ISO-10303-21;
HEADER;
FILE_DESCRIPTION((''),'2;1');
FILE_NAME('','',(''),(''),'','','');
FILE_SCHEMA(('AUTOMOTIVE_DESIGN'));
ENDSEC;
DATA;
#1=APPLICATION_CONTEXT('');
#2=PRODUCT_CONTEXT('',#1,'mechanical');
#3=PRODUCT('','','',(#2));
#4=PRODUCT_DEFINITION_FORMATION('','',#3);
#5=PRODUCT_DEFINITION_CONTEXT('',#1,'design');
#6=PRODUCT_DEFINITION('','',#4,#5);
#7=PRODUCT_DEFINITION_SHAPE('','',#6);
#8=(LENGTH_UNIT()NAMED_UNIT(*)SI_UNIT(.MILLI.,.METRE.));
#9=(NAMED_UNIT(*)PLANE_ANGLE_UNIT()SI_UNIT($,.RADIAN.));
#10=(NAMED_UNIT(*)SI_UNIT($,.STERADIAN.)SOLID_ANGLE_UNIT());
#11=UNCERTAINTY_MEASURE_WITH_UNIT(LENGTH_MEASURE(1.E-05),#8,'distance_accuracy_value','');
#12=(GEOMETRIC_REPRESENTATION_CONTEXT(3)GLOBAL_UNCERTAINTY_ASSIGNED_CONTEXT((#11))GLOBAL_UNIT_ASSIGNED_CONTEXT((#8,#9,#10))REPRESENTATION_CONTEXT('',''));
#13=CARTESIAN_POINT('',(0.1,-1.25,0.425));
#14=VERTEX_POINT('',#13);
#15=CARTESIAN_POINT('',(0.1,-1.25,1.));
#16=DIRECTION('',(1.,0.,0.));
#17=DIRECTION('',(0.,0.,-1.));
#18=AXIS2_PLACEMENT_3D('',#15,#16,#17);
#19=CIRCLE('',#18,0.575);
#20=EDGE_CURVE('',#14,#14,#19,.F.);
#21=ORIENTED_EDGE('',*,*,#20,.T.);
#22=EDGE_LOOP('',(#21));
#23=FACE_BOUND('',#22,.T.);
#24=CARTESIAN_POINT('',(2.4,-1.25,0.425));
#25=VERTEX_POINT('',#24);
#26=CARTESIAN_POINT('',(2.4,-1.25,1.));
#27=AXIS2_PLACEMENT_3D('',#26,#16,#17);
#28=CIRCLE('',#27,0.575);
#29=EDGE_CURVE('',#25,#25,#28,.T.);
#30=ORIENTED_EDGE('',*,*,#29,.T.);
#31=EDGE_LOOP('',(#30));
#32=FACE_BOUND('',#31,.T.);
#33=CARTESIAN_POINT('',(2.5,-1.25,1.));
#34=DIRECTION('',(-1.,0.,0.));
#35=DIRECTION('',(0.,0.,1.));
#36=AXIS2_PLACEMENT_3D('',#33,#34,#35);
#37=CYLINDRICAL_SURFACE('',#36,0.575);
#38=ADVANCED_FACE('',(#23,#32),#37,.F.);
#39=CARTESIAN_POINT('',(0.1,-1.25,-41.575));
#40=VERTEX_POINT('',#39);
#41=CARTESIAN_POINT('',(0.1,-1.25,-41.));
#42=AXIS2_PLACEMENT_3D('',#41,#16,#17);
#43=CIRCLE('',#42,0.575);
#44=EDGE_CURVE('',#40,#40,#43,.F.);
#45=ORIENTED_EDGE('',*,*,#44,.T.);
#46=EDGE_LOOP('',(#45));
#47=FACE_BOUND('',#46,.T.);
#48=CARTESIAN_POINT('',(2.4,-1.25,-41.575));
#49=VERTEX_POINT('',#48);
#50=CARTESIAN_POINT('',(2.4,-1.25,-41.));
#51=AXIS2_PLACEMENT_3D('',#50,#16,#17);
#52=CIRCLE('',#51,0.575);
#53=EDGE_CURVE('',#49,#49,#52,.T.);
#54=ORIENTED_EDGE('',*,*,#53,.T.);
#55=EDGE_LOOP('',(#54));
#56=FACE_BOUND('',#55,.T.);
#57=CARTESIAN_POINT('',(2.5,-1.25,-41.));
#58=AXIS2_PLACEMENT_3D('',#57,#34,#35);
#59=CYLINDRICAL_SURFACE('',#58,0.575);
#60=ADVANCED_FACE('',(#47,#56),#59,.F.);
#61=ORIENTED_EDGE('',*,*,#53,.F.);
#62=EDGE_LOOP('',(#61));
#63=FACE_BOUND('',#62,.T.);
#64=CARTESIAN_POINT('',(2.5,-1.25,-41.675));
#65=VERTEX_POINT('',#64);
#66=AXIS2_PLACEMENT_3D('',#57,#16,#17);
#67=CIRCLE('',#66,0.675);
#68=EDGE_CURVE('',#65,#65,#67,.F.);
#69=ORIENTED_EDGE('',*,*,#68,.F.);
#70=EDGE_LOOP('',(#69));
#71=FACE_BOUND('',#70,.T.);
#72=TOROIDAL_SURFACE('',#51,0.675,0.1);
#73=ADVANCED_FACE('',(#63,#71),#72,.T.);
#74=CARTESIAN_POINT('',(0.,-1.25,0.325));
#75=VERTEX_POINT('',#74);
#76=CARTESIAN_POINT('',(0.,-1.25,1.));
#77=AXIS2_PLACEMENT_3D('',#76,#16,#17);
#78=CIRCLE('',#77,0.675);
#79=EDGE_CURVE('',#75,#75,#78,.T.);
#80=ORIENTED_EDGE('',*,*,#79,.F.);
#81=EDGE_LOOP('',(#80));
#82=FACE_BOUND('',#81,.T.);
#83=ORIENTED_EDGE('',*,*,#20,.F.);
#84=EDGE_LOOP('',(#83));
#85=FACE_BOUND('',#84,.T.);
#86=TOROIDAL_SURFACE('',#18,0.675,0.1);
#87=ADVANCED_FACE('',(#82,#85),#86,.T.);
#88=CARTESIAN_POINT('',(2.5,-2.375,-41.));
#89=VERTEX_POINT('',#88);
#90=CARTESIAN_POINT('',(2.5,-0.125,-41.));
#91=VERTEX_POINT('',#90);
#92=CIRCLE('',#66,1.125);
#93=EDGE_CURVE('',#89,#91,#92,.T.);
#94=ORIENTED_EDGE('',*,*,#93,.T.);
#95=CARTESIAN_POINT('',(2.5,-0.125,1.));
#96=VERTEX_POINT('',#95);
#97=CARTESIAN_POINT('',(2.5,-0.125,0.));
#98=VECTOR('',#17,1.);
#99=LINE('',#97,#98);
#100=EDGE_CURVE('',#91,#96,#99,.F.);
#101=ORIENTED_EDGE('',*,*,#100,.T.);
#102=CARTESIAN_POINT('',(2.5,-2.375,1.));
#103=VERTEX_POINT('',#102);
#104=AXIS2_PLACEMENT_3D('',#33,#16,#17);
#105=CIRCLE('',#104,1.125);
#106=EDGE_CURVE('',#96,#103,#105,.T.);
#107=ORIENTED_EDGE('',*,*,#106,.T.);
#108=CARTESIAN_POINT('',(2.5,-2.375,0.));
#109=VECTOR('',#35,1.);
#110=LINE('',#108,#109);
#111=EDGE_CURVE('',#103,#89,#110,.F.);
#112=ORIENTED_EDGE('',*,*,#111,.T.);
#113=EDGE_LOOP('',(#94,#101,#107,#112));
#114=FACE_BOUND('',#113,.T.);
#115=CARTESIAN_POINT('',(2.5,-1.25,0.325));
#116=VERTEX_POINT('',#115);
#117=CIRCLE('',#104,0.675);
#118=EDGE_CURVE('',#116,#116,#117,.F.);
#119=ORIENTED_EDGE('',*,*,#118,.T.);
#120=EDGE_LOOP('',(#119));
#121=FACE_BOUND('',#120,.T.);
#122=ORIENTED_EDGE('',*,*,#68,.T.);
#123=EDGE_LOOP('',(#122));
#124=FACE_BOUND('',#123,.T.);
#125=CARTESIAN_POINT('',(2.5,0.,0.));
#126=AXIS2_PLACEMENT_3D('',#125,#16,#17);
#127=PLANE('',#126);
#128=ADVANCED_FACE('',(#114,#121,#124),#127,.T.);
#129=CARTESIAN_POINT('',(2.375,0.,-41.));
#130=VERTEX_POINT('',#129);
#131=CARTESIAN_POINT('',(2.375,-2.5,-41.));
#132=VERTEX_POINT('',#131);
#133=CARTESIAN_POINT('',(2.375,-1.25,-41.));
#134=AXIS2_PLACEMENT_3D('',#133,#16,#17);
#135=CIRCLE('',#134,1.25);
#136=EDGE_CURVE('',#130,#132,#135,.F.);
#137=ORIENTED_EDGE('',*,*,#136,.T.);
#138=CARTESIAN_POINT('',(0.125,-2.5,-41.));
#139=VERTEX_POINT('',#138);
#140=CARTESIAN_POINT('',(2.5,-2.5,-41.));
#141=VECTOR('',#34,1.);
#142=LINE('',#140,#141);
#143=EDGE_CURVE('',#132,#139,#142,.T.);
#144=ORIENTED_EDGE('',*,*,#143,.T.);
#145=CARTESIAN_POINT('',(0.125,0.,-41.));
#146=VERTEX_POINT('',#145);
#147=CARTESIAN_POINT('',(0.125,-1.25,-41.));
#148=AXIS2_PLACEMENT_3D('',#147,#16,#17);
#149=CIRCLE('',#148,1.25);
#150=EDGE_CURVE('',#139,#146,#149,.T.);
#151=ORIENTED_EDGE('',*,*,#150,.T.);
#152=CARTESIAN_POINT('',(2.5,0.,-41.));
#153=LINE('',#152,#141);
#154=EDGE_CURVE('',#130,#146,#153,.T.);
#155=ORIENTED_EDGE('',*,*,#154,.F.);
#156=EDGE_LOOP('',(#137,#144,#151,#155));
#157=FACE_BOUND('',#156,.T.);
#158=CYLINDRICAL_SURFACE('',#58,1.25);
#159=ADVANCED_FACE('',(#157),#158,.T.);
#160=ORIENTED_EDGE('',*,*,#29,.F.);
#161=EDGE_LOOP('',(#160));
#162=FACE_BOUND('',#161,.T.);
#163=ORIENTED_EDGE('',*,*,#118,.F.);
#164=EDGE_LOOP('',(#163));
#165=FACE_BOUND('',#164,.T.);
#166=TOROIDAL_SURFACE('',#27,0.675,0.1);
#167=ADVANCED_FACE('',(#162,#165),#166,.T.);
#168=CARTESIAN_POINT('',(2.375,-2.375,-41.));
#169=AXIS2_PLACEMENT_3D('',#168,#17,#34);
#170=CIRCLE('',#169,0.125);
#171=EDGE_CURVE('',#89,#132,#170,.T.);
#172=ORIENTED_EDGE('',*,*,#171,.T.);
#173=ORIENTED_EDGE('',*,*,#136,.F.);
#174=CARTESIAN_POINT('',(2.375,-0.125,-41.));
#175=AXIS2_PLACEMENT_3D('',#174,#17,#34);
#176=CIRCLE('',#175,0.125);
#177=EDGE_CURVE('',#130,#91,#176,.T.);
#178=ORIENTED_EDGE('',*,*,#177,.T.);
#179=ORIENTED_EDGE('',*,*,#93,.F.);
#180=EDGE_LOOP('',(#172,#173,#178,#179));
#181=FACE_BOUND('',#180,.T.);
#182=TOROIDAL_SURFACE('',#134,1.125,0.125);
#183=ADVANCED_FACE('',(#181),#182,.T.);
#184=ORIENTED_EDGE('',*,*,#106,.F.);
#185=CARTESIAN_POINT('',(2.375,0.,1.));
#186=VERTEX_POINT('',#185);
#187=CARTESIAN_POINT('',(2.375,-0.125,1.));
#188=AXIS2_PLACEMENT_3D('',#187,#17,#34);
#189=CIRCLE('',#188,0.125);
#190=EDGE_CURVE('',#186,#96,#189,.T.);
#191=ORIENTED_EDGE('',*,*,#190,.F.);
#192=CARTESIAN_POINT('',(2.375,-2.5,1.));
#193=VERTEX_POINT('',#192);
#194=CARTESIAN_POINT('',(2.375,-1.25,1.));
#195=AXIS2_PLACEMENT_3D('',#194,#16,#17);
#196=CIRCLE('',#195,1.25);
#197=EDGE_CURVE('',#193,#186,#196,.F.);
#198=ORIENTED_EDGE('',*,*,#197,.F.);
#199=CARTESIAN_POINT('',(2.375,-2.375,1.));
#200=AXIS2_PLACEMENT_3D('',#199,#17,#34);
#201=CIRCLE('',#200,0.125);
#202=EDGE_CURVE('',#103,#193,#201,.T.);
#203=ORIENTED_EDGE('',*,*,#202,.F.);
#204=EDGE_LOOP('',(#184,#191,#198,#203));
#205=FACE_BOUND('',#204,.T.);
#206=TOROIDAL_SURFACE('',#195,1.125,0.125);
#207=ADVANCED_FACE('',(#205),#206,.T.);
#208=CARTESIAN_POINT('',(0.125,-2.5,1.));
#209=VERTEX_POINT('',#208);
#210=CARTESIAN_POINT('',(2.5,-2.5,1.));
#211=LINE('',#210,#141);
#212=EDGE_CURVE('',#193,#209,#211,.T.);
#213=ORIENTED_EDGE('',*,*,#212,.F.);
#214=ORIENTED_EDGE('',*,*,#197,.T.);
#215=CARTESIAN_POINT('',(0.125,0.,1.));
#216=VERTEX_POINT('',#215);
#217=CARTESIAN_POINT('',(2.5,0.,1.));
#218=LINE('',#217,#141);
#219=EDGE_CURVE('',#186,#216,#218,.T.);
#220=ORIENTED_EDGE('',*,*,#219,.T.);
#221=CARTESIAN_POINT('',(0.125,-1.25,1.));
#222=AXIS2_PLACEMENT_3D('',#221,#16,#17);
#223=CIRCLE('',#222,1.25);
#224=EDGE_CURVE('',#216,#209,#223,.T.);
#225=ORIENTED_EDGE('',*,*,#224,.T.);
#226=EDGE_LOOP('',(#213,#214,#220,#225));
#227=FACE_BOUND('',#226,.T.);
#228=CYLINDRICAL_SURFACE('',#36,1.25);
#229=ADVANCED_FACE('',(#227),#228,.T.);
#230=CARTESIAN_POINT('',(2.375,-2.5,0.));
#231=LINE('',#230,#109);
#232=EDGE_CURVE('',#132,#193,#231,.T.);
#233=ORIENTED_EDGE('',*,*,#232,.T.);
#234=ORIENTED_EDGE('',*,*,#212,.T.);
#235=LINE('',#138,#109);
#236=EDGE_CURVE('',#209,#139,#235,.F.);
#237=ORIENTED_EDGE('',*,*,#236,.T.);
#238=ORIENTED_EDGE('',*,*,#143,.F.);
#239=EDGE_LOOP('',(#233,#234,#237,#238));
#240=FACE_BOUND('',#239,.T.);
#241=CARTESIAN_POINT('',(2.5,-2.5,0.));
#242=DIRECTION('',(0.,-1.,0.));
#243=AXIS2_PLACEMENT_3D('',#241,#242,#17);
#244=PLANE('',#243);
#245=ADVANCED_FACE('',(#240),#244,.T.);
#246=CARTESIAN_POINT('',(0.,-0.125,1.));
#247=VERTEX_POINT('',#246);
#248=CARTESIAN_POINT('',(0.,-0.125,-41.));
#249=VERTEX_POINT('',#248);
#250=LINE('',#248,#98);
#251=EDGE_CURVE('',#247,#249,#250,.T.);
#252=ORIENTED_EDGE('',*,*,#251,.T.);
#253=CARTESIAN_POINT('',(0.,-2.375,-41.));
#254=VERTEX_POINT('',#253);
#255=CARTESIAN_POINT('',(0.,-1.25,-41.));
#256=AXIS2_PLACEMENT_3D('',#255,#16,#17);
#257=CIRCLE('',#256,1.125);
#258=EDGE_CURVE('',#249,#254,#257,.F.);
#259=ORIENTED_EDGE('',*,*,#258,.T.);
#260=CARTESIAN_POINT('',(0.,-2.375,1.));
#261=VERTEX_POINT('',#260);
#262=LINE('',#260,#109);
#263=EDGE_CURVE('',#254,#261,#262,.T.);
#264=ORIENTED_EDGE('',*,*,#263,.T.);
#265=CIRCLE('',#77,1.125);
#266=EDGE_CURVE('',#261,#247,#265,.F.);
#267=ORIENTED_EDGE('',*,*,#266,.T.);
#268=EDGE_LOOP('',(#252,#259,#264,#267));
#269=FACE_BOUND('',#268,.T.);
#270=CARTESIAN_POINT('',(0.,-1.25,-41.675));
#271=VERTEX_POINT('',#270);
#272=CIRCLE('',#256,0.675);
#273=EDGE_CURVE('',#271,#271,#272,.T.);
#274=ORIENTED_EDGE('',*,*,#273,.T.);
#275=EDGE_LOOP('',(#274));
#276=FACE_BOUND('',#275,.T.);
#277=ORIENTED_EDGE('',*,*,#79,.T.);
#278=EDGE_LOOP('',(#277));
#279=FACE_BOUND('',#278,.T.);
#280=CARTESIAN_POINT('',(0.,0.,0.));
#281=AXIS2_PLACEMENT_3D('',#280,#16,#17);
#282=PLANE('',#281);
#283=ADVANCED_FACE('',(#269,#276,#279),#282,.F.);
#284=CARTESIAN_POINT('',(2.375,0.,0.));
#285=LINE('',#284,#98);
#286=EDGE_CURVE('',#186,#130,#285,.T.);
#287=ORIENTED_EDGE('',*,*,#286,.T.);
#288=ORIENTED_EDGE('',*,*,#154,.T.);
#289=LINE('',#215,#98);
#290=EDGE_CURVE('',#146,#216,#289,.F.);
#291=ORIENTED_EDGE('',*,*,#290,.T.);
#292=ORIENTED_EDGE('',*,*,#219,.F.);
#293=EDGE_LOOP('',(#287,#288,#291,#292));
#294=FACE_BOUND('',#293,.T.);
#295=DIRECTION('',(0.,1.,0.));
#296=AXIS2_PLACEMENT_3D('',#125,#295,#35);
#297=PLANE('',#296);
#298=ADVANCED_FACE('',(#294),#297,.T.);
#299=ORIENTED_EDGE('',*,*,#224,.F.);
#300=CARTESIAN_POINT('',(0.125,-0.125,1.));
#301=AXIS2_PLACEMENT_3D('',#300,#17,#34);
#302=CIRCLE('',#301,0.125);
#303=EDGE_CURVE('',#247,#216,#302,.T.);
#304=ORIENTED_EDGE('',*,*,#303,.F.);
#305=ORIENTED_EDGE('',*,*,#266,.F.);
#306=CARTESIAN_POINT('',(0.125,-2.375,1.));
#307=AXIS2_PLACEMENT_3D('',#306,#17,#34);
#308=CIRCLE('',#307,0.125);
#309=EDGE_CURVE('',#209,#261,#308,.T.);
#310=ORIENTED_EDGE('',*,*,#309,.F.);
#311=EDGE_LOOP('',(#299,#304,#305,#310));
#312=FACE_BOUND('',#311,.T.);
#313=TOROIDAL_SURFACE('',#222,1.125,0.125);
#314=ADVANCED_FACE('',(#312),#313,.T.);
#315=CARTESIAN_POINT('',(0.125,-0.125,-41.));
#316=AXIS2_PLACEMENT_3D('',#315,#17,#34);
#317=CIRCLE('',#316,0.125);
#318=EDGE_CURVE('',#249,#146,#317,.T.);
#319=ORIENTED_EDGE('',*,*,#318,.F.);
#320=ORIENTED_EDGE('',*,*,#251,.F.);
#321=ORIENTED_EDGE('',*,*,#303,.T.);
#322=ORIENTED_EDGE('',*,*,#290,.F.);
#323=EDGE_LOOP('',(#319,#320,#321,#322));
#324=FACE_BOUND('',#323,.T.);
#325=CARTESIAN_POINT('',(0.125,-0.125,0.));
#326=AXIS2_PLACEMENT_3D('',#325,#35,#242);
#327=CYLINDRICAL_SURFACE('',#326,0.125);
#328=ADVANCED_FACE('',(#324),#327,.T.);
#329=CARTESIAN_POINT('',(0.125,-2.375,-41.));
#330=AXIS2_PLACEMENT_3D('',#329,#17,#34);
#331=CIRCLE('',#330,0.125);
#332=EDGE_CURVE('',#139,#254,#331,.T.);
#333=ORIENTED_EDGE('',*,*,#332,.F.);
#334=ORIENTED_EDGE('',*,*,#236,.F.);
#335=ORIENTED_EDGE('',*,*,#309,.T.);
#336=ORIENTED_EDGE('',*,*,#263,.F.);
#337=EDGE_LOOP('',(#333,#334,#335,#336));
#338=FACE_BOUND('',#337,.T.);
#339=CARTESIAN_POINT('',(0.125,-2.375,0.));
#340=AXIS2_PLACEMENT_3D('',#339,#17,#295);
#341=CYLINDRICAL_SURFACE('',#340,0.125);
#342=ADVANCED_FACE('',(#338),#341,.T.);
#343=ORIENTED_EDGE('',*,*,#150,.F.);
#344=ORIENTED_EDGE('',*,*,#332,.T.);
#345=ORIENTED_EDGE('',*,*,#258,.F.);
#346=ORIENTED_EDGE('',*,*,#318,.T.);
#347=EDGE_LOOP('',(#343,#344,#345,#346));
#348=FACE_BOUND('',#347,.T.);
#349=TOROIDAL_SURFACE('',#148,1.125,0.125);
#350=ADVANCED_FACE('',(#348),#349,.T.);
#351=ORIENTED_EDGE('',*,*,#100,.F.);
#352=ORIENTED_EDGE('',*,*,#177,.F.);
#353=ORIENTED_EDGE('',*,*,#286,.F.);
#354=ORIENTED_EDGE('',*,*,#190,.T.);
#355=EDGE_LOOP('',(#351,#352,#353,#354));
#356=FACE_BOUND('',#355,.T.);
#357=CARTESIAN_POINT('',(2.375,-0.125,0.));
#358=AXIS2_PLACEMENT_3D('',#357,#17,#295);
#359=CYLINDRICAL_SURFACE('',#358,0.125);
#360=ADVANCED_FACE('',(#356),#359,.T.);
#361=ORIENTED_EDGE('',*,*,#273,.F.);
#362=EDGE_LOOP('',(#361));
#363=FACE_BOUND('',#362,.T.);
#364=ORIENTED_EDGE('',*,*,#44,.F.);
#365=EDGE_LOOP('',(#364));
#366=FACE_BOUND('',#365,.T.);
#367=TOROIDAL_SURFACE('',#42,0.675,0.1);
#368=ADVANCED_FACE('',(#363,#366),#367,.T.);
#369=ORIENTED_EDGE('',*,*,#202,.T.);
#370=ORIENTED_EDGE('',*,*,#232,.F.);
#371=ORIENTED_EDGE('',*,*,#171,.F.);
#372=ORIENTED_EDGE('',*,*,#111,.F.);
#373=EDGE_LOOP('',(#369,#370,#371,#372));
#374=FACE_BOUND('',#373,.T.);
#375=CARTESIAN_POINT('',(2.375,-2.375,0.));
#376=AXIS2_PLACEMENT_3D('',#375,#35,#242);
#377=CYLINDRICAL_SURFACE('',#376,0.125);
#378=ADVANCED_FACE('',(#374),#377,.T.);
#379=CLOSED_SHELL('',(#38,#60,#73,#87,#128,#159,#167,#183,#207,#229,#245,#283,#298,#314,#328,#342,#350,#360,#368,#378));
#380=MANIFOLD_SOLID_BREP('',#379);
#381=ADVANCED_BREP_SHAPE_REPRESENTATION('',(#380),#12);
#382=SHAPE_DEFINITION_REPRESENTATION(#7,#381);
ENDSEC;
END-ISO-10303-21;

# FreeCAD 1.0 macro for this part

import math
import FreeCAD as App
import Part
import Sketcher

V = App.Vector
Q = App.Units.Quantity


def edges_at(feature, points):
    """Names of the edges that pass closest to the given points."""
    edges = feature.Shape.Edges
    near = lambda p: min(range(len(edges)), key=lambda i: edges[i].distToShape(Part.Vertex(*p))[0])
    return sorted({f"Edge{near(p) + 1}" for p in points})

doc = App.newDocument("Part")
body = doc.addObject("PartDesign::Body", "Body")

sketch1 = doc.addObject("Sketcher::SketchObject", "Sketch")
body.addObject(sketch1)
sketch1.AttachmentSupport = (doc.YZ_Plane, [""])
sketch1.MapMode = "FlatFace"
sketch1.addGeometry([
    Part.ArcOfCircle(Part.Circle(V(-1.2, -41, 0), V(0, 0, 1), 1.2), math.radians(180), math.radians(360)),
    Part.LineSegment(V(0, -41, 0), V(0, 1, 0)),
    Part.ArcOfCircle(Part.Circle(V(-1.2, 1, 0), V(0, 0, 1), 1.2), math.radians(0), math.radians(180)),
    Part.LineSegment(V(-2.5, 1, 0), V(-2.5, -41, 0)),
    Part.Circle(V(-1.2, -41, 0), V(0, 0, 1), 0.6),
    Part.Circle(V(-1.2, 1, 0), V(0, 0, 1), 0.6),
], False)
sketch1.addConstraint([
    Sketcher.Constraint("Tangent", 0, 2, 1, 1),
    Sketcher.Constraint("Tangent", 1, 2, 2, 1),
    Sketcher.Constraint("Tangent", 2, 2, 3, 1),
    Sketcher.Constraint("Tangent", 3, 2, 0, 1),
    Sketcher.Constraint("Vertical", 1),
    Sketcher.Constraint("Vertical", 3),
    Sketcher.Constraint("Coincident", 4, 3, 0, 3),
    Sketcher.Constraint("Coincident", 5, 3, 2, 3),
    Sketcher.Constraint("Equal", 4, 5),
    Sketcher.Constraint("PointOnObject", 0, 2, -2),
    Sketcher.Constraint("Diameter", 4, Q("1.15 mm")),
    Sketcher.Constraint("DistanceY", 1, 1, 1, 2, Q("42 mm")),
    Sketcher.Constraint("Radius", 0, Q("1.25 mm")),
    Sketcher.Constraint("DistanceY", 0, 3, -1, 1, Q("41 mm")),
])
pad1 = doc.addObject("PartDesign::Pad", "Pad")
body.addObject(pad1)
pad1.Profile = sketch1
pad1.Length = 2.5
doc.recompute()

fillet = doc.addObject("PartDesign::Fillet", "Fillet")
body.addObject(fillet)
fillet.Base = (pad1, edges_at(pad1, [
    (0, -1.25, 2.25),
    (0, 0, -20),
    (0, -1.25, -42.25),
    (2.5, 0, -20),
    (2.5, -1.25, 2.25),
    (2.5, -2.5, -20),
    (2.5, -1.25, -42.25),
    (0, -2.5, -20),
]))
fillet.Radius = 0.125
doc.recompute()

fillet2 = doc.addObject("PartDesign::Fillet", "Fillet001")
body.addObject(fillet2)
fillet2.Base = (fillet, edges_at(fillet, [
    (2.5, -1.25, -40.425),
    (2.5, -1.25, 1.575),
    (0, -1.25, 1.575),
    (0, -1.25, -40.425),
]))
fillet2.Radius = 0.1

doc.recompute()
